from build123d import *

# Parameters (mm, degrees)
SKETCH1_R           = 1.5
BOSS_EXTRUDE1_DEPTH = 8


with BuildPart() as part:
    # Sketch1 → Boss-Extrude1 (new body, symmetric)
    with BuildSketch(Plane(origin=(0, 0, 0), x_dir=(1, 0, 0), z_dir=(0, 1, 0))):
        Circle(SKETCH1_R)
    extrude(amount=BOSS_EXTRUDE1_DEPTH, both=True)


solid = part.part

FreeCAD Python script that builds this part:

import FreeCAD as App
import Part
import Sketcher
Q = App.Units.Quantity

doc = App.newDocument("Part")
params = doc.addObject("Spreadsheet::Sheet", "Params")
for row, (alias, value) in enumerate([
    ("sketch1_diameter", "3 mm"),
    ("pad1_length", "16 mm"),
], start=1):
    params.set(f"A{row}", alias)
    params.set(f"B{row}", "=" + value)
    params.setAlias(f"B{row}", alias)

body = doc.addObject("PartDesign::Body", "Body")

# Sketch on XZ plane
sketch1 = body.newObject("Sketcher::SketchObject", "Sketch")
sketch1.AttachmentSupport = (doc.getObject("XZ_Plane"), [""])
sketch1.MapMode = "FlatFace"
sketch1.addGeometry(Part.Circle(App.Vector(0, 0, 0), App.Vector(0, 0, 1), 1.5), False)
sketch1.addConstraint(Sketcher.Constraint("Coincident", 0, 3, -1, 1))
sketch1.addConstraint(Sketcher.Constraint("Diameter", 0, Q("3 mm")))
sketch1.setExpression("Constraints[1]", "Params.sketch1_diameter")
pad1 = body.newObject("PartDesign::Pad", "Pad")
pad1.Profile = sketch1
pad1.setExpression("Length", "Params.pad1_length")
pad1.Midplane = True

doc.recompute()
